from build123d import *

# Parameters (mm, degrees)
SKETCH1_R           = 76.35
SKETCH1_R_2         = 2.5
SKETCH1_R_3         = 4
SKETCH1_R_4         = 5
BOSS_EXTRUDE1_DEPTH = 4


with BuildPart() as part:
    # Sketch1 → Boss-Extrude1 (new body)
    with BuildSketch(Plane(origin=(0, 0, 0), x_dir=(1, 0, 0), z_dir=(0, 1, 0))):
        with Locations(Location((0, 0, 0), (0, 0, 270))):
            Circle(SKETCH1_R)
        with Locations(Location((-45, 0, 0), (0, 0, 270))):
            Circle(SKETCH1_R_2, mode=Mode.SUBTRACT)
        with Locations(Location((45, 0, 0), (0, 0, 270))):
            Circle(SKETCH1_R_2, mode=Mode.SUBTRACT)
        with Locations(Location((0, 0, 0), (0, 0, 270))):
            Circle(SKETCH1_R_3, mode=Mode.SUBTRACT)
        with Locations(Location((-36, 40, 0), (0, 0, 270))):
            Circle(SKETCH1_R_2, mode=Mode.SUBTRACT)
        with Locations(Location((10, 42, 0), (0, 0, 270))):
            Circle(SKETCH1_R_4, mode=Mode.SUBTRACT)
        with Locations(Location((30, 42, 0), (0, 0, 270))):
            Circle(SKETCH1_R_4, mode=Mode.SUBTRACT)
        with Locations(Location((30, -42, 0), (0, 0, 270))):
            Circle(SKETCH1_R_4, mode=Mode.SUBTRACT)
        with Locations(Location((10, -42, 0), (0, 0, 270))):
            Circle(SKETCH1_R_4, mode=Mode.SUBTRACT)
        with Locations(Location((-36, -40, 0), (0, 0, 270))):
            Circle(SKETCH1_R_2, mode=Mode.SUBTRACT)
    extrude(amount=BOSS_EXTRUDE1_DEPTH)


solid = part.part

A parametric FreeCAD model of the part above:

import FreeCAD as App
import Part
import Sketcher
from FreeCAD import Vector

doc = App.newDocument("Part")
body = doc.addObject("PartDesign::Body", "Body")

sketch1 = body.newObject("Sketcher::SketchObject", "Sketch")
sketch1.AttachmentSupport = (doc.getObject("XZ_Plane"), [""])
sketch1.MapMode = "FlatFace"
sketch1.addGeometry([
    Part.Circle(Vector(0, 0, 0), Vector(0, 0, 1), 76.3),
    Part.Circle(Vector(-36, -40, 0), Vector(0, 0, 1), 2.5),
    Part.Circle(Vector(-45, 0, 0), Vector(0, 0, 1), 2.5),
    Part.Circle(Vector(-36, 40, 0), Vector(0, 0, 1), 2.5),
    Part.Circle(Vector(10, -42, 0), Vector(0, 0, 1), 5),
    Part.Circle(Vector(30, -42, 0), Vector(0, 0, 1), 5),
    Part.Circle(Vector(0, 0, 0), Vector(0, 0, 1), 4),
    Part.Circle(Vector(10, 42, 0), Vector(0, 0, 1), 5),
    Part.Circle(Vector(45, 0, 0), Vector(0, 0, 1), 2.5),
    Part.Circle(Vector(30, 42, 0), Vector(0, 0, 1), 5),
], False)
sketch1.addConstraint([
    Sketcher.Constraint("Coincident", 0, 3, -1, 1),
    Sketcher.Constraint("Coincident", 6, 3, -1, 1),
    Sketcher.Constraint("Equal", 1, 2),
    Sketcher.Constraint("Equal", 2, 3),
    Sketcher.Constraint("Equal", 4, 5),
    Sketcher.Constraint("Equal", 5, 7),
    Sketcher.Constraint("Equal", 3, 8),
    Sketcher.Constraint("Equal", 7, 9),
    Sketcher.Constraint("Symmetric", 2, 3, 8, 3, -1, 1),
    Sketcher.Constraint("Symmetric", 1, 3, 3, 3, -1),
    Sketcher.Constraint("Symmetric", 4, 3, 7, 3, -1),
    Sketcher.Constraint("Symmetric", 5, 3, 9, 3, -1),
    Sketcher.Constraint("PointOnObject", 2, 3, -1),
    Sketcher.Constraint("Horizontal", 4, 3, 5, 3),
    Sketcher.Constraint("Diameter", 1, 5.0),
    Sketcher.Constraint("Diameter", 4, 10.0),
    Sketcher.Constraint("Diameter", 6, 8.0),
    Sketcher.Constraint("Diameter", 0, 152.7),
    Sketcher.Constraint("DistanceX", 1, 3, -1, 1, 36.0),
    Sketcher.Constraint("DistanceY", 1, 3, -1, 1, 40.0),
    Sketcher.Constraint("DistanceX", 2, 3, -1, 1, 45.0),
    Sketcher.Constraint("DistanceX", -1, 1, 4, 3, 10.0),
    Sketcher.Constraint("DistanceY", 4, 3, -1, 1, 42.0),
    Sketcher.Constraint("DistanceX", -1, 1, 5, 3, 30.0),
])
pad1 = body.newObject("PartDesign::Pad", "Pad")
pad1.Profile = sketch1
pad1.Length = 4
pad1.Reversed = True

doc.recompute()
